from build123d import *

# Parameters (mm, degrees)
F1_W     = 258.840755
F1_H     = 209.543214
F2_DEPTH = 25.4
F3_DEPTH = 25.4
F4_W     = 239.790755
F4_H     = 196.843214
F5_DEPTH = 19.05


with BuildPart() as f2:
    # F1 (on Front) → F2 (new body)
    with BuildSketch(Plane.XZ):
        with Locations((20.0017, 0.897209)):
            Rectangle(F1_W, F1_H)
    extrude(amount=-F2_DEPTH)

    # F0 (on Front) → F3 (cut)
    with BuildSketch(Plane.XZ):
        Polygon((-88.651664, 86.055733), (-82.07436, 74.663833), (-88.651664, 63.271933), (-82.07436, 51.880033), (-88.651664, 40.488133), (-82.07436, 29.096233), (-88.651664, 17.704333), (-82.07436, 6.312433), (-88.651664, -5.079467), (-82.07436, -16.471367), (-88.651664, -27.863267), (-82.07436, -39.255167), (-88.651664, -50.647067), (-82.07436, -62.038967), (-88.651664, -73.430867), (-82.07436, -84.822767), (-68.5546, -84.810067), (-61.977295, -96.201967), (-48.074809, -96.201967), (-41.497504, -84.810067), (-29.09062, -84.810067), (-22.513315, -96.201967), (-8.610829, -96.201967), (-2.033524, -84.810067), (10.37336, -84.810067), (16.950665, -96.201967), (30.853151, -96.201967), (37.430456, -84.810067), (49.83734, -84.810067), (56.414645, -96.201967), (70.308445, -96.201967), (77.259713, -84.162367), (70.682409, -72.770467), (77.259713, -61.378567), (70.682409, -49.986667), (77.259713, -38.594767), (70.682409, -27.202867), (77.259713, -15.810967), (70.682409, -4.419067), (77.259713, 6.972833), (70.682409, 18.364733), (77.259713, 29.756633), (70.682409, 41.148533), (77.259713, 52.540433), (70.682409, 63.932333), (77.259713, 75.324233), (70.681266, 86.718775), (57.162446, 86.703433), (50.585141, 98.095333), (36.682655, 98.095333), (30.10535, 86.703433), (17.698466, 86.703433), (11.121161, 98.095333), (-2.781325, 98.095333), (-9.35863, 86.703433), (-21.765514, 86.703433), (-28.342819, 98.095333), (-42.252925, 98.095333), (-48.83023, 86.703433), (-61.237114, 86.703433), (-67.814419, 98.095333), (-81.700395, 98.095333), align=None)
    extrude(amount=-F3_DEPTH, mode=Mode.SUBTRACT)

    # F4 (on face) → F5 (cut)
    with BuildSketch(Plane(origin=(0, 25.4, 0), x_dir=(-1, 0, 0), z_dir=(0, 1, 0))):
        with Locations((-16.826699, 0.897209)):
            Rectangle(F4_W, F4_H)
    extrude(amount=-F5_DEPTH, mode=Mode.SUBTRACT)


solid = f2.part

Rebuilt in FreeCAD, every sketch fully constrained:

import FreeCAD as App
import Part
import Sketcher
Q = App.Units.Quantity


def add_polygon(sketch, points):
    """Adds a closed chain of lines whose ends are joined by coincident constraints."""
    first, n = sketch.GeometryCount, len(points)
    for a, b in zip(points, points[1:] + points[:1]):
        sketch.addGeometry(Part.LineSegment(App.Vector(*a, 0), App.Vector(*b, 0)), False)
    for i in range(n):
        sketch.addConstraint(Sketcher.Constraint("Coincident", first + i, 2, first + (i + 1) % n, 1))

doc = App.newDocument("Part")
params = doc.addObject("Spreadsheet::Sheet", "Params")
for row, (alias, value) in enumerate([
    ("pad1_length", "1 in"),
    ("sketch2_width", "0.547 in"),
    ("pocket1_length", "1 in"),
    ("pocket2_length", "0.75 in"),
], start=1):
    params.set(f"A{row}", alias)
    params.set(f"B{row}", "=" + value)
    params.setAlias(f"B{row}", alias)

body = doc.addObject("PartDesign::Body", "Body")

sketch1 = doc.addObject("Sketcher::SketchObject", "Sketch")
body.addObject(sketch1)
sketch1.AttachmentSupport = (doc.XZ_Plane, [""])
sketch1.MapMode = "FlatFace"
add_polygon(sketch1, [(-109.418678, 105.668816), (-109.418678, -103.874398), (149.422078, -103.874398), (149.422078, 105.668816)])
sketch1.addConstraint([
    Sketcher.Constraint("Vertical", 0),
    Sketcher.Constraint("Horizontal", 1),
    Sketcher.Constraint("Vertical", 2),
    Sketcher.Constraint("Horizontal", 3),
    Sketcher.Constraint("DistanceY", 0, 2, -1, 1, Q("103.874398 mm")),
    Sketcher.Constraint("DistanceX", 1, 1, 1, 2, Q("258.840755 mm")),
    Sketcher.Constraint("DistanceY", 0, 2, 0, 1, Q("209.543214 mm")),
    Sketcher.Constraint("DistanceX", 0, 2, -1, 1, Q("109.418678 mm")),
])
pad1 = doc.addObject("PartDesign::Pad", "Pad")
body.addObject(pad1)
pad1.Profile = sketch1
pad1.setExpression("Length", "Params.pad1_length")
pad1.Reversed = True

sketch2 = doc.addObject("Sketcher::SketchObject", "Sketch001")
body.addObject(sketch2)
sketch2.AttachmentSupport = (doc.XZ_Plane, [""])
sketch2.MapMode = "FlatFace"
add_polygon(sketch2, [(-88.651664, 86.055733), (-82.07436, 74.663833), (-88.651664, 63.271933), (-82.07436, 51.880033), (-88.651664, 40.488133), (-82.07436, 29.096233), (-88.651664, 17.704333), (-82.07436, 6.312433), (-88.651664, -5.079467), (-82.07436, -16.471367), (-88.651664, -27.863267), (-82.07436, -39.255167), (-88.651664, -50.647067), (-82.07436, -62.038967), (-88.651664, -73.430867), (-82.07436, -84.822767), (-68.5546, -84.810067), (-61.977295, -96.201967), (-48.074809, -96.201967), (-41.497504, -84.810067), (-29.09062, -84.810067), (-22.513315, -96.201967), (-8.610829, -96.201967), (-2.033524, -84.810067), (10.37336, -84.810067), (16.950665, -96.201967), (30.853151, -96.201967), (37.430456, -84.810067), (49.83734, -84.810067), (56.414645, -96.201967), (70.308445, -96.201967), (77.259713, -84.162367), (70.682409, -72.770467), (77.259713, -61.378567), (70.682409, -49.986667), (77.259713, -38.594767), (70.682409, -27.202867), (77.259713, -15.810967), (70.682409, -4.419067), (77.259713, 6.972833), (70.682409, 18.364733), (77.259713, 29.756633), (70.682409, 41.148533), (77.259713, 52.540433), (70.682409, 63.932333), (77.259713, 75.324233), (70.681266, 86.718775), (57.162446, 86.703433), (50.585141, 98.095333), (36.682655, 98.095333), (30.10535, 86.703433), (17.698466, 86.703433), (11.121161, 98.095333), (-2.781325, 98.095333), (-9.35863, 86.703433), (-21.765514, 86.703433), (-28.342819, 98.095333), (-42.252925, 98.095333), (-48.83023, 86.703433), (-61.237114, 86.703433), (-67.814419, 98.095333), (-81.700395, 98.095333)])
sketch2.addConstraint([
    Sketcher.Constraint("Horizontal", 17),
    Sketcher.Constraint("Horizontal", 19),
    Sketcher.Constraint("Horizontal", 21),
    Sketcher.Constraint("Horizontal", 23),
    Sketcher.Constraint("Horizontal", 25),
    Sketcher.Constraint("Horizontal", 27),
    Sketcher.Constraint("Horizontal", 29),
    Sketcher.Constraint("Horizontal", 48),
    Sketcher.Constraint("Horizontal", 50),
    Sketcher.Constraint("Horizontal", 52),
    Sketcher.Constraint("Horizontal", 54),
    Sketcher.Constraint("Horizontal", 56),
    Sketcher.Constraint("Horizontal", 58),
    Sketcher.Constraint("Horizontal", 60),
    Sketcher.Constraint("Parallel", 0, 2),
    Sketcher.Constraint("Parallel", 1, 3),
    Sketcher.Constraint("Parallel", 2, 4),
    Sketcher.Constraint("Parallel", 3, 5),
    Sketcher.Constraint("Parallel", 4, 6),
    Sketcher.Constraint("Parallel", 5, 7),
    Sketcher.Constraint("Parallel", 6, 8),
    Sketcher.Constraint("Parallel", 7, 9),
    Sketcher.Constraint("Parallel", 8, 10),
    Sketcher.Constraint("Parallel", 9, 11),
    Sketcher.Constraint("Parallel", 10, 12),
    Sketcher.Constraint("Parallel", 11, 13),
    Sketcher.Constraint("Parallel", 12, 14),
    Sketcher.Constraint("Parallel", 14, 16),
    Sketcher.Constraint("Parallel", 13, 18),
    Sketcher.Constraint("Parallel", 16, 20),
    Sketcher.Constraint("Parallel", 18, 22),
    Sketcher.Constraint("Parallel", 20, 24),
    Sketcher.Constraint("Parallel", 22, 26),
    Sketcher.Constraint("Parallel", 24, 28),
    Sketcher.Constraint("Parallel", 26, 30),
    Sketcher.Constraint("Parallel", 28, 31),
    Sketcher.Constraint("Parallel", 30, 32),
    Sketcher.Constraint("Parallel", 31, 33),
    Sketcher.Constraint("Parallel", 32, 34),
    Sketcher.Constraint("Parallel", 33, 35),
    Sketcher.Constraint("Parallel", 34, 36),
    Sketcher.Constraint("Parallel", 35, 37),
    Sketcher.Constraint("Parallel", 36, 38),
    Sketcher.Constraint("Parallel", 37, 39),
    Sketcher.Constraint("Parallel", 38, 40),
    Sketcher.Constraint("Parallel", 39, 41),
    Sketcher.Constraint("Parallel", 40, 42),
    Sketcher.Constraint("Parallel", 41, 43),
    Sketcher.Constraint("Parallel", 42, 44),
    Sketcher.Constraint("Parallel", 43, 47),
    Sketcher.Constraint("Parallel", 44, 49),
    Sketcher.Constraint("Parallel", 47, 51),
    Sketcher.Constraint("Parallel", 49, 53),
    Sketcher.Constraint("Parallel", 51, 55),
    Sketcher.Constraint("Parallel", 53, 57),
    Sketcher.Constraint("Parallel", 55, 59),
    Sketcher.Constraint("Parallel", 57, 61),
    Sketcher.Constraint("Horizontal", 15, 2, 18, 2),
    Sketcher.Constraint("Horizontal", 17, 2, 20, 2),
    Sketcher.Constraint("Horizontal", 19, 2, 22, 2),
    Sketcher.Constraint("Horizontal", 21, 2, 24, 2),
    Sketcher.Constraint("Horizontal", 23, 2, 26, 2),
    Sketcher.Constraint("Horizontal", 25, 2, 28, 2),
    Sketcher.Constraint("Horizontal", 46, 2, 49, 2),
    Sketcher.Constraint("Horizontal", 48, 2, 51, 2),
    Sketcher.Constraint("Horizontal", 50, 2, 53, 2),
    Sketcher.Constraint("Horizontal", 52, 2, 55, 2),
    Sketcher.Constraint("Horizontal", 54, 2, 57, 2),
    Sketcher.Constraint("Horizontal", 56, 2, 59, 2),
    Sketcher.Constraint("Vertical", 0, 2, 2, 2),
    Sketcher.Constraint("Vertical", 1, 2, 3, 2),
    Sketcher.Constraint("Vertical", 2, 2, 4, 2),
    Sketcher.Constraint("Vertical", 3, 2, 5, 2),
    Sketcher.Constraint("Vertical", 4, 2, 6, 2),
    Sketcher.Constraint("Vertical", 5, 2, 7, 2),
    Sketcher.Constraint("Vertical", 6, 2, 8, 2),
    Sketcher.Constraint("Vertical", 7, 2, 9, 2),
    Sketcher.Constraint("Vertical", 8, 2, 10, 2),
    Sketcher.Constraint("Vertical", 9, 2, 11, 2),
    Sketcher.Constraint("Vertical", 10, 2, 12, 2),
    Sketcher.Constraint("Vertical", 11, 2, 13, 2),
    Sketcher.Constraint("Vertical", 12, 2, 14, 2),
    Sketcher.Constraint("Vertical", 30, 2, 32, 2),
    Sketcher.Constraint("Vertical", 31, 2, 33, 2),
    Sketcher.Constraint("Vertical", 32, 2, 34, 2),
    Sketcher.Constraint("Vertical", 33, 2, 35, 2),
    Sketcher.Constraint("Vertical", 34, 2, 36, 2),
    Sketcher.Constraint("Vertical", 35, 2, 37, 2),
    Sketcher.Constraint("Vertical", 36, 2, 38, 2),
    Sketcher.Constraint("Vertical", 37, 2, 39, 2),
    Sketcher.Constraint("Vertical", 38, 2, 40, 2),
    Sketcher.Constraint("Vertical", 39, 2, 41, 2),
    Sketcher.Constraint("Vertical", 40, 2, 42, 2),
    Sketcher.Constraint("Vertical", 41, 2, 43, 2),
    Sketcher.Constraint("Vertical", 42, 2, 44, 2),
    Sketcher.Constraint("Vertical", 13, 2, 61, 2),
    Sketcher.Constraint("Equal", 17, 21),
    Sketcher.Constraint("Equal", 19, 23),
    Sketcher.Constraint("Equal", 21, 25),
    Sketcher.Constraint("Equal", 23, 27),
    Sketcher.Constraint("Equal", 25, 48),
    Sketcher.Constraint("Equal", 27, 50),
    Sketcher.Constraint("Equal", 48, 52),
    Sketcher.Constraint("Equal", 50, 54),
    Sketcher.Constraint("Equal", 54, 58),
    Sketcher.Constraint("Equal", 0, 1),
    Sketcher.Constraint("Equal", 14, 16),
    Sketcher.Constraint("Equal", 28, 31),
    Sketcher.Constraint("Equal", 44, 47),
    Sketcher.Constraint("Equal", 30, 61),
    Sketcher.Constraint("DistanceX", 29, 1, 29, 2, Q("0.547 in")),
    Sketcher.Constraint("DistanceX", 15, 2, -1, 1, Q("2.699 in")),
    Sketcher.Constraint("DistanceX", 19, 2, -1, 1, Q("1.1453 in")),
    Sketcher.Constraint("Distance", 46, Q("13.518829 mm")),
    Sketcher.Constraint("DistanceX", 17, 1, 17, 2, Q("13.902486 mm")),
    Sketcher.Constraint("DistanceX", 19, 1, 19, 2, Q("12.406884 mm")),
    Sketcher.Constraint("DistanceX", 56, 2, 56, 1, Q("13.910106 mm")),
    Sketcher.Constraint("DistanceX", 60, 2, 60, 1, Q("13.885976 mm")),
    Sketcher.Constraint("DistanceX", 0, 2, -1, 1, Q("82.07436 mm")),
    Sketcher.Constraint("DistanceX", -1, 1, 31, 2, Q("70.682409 mm")),
    Sketcher.Constraint("Distance", 0, Q("13.154327 mm")),
    Sketcher.Constraint("Distance", 45, Q("13.157186 mm")),
    Sketcher.Constraint("DistanceY", -1, 1, 0, 2, Q("74.663833 mm")),
    Sketcher.Constraint("DistanceY", 15, 2, -1, 1, Q("84.810067 mm")),
])
sketch2.setExpression("Constraints[172]", "Params.sketch2_width")
pocket1 = doc.addObject("PartDesign::Pocket", "Pocket")
body.addObject(pocket1)
pocket1.Profile = sketch2
pocket1.setExpression("Length", "Params.pocket1_length")

sketch3 = doc.addObject("Sketcher::SketchObject", "Sketch002")
body.addObject(sketch3)
sketch3.AttachmentSupport = (doc.XZ_Plane, [""])
sketch3.MapMode = "FlatFace"
sketch3.AttachmentOffset = App.Placement(App.Vector(0, 0, -1 * 25.4), App.Rotation())
add_polygon(sketch3, [(136.722076, 99.318816), (136.722076, -97.524398), (-103.068679, -97.524398), (-103.068679, 99.318816)])
sketch3.addConstraint([
    Sketcher.Constraint("Vertical", 0),
    Sketcher.Constraint("Horizontal", 1),
    Sketcher.Constraint("Vertical", 2),
    Sketcher.Constraint("Horizontal", 3),
    Sketcher.Constraint("DistanceY", 0, 2, -1, 1, Q("97.524398 mm")),
    Sketcher.Constraint("DistanceX", 1, 2, 1, 1, Q("239.790755 mm")),
    Sketcher.Constraint("DistanceY", 0, 2, 0, 1, Q("196.843214 mm")),
    Sketcher.Constraint("DistanceX", 1, 2, -1, 1, Q("103.068679 mm")),
])
pocket2 = doc.addObject("PartDesign::Pocket", "Pocket001")
body.addObject(pocket2)
pocket2.Profile = sketch3
pocket2.setExpression("Length", "Params.pocket2_length")
pocket2.Reversed = True

doc.recompute()
